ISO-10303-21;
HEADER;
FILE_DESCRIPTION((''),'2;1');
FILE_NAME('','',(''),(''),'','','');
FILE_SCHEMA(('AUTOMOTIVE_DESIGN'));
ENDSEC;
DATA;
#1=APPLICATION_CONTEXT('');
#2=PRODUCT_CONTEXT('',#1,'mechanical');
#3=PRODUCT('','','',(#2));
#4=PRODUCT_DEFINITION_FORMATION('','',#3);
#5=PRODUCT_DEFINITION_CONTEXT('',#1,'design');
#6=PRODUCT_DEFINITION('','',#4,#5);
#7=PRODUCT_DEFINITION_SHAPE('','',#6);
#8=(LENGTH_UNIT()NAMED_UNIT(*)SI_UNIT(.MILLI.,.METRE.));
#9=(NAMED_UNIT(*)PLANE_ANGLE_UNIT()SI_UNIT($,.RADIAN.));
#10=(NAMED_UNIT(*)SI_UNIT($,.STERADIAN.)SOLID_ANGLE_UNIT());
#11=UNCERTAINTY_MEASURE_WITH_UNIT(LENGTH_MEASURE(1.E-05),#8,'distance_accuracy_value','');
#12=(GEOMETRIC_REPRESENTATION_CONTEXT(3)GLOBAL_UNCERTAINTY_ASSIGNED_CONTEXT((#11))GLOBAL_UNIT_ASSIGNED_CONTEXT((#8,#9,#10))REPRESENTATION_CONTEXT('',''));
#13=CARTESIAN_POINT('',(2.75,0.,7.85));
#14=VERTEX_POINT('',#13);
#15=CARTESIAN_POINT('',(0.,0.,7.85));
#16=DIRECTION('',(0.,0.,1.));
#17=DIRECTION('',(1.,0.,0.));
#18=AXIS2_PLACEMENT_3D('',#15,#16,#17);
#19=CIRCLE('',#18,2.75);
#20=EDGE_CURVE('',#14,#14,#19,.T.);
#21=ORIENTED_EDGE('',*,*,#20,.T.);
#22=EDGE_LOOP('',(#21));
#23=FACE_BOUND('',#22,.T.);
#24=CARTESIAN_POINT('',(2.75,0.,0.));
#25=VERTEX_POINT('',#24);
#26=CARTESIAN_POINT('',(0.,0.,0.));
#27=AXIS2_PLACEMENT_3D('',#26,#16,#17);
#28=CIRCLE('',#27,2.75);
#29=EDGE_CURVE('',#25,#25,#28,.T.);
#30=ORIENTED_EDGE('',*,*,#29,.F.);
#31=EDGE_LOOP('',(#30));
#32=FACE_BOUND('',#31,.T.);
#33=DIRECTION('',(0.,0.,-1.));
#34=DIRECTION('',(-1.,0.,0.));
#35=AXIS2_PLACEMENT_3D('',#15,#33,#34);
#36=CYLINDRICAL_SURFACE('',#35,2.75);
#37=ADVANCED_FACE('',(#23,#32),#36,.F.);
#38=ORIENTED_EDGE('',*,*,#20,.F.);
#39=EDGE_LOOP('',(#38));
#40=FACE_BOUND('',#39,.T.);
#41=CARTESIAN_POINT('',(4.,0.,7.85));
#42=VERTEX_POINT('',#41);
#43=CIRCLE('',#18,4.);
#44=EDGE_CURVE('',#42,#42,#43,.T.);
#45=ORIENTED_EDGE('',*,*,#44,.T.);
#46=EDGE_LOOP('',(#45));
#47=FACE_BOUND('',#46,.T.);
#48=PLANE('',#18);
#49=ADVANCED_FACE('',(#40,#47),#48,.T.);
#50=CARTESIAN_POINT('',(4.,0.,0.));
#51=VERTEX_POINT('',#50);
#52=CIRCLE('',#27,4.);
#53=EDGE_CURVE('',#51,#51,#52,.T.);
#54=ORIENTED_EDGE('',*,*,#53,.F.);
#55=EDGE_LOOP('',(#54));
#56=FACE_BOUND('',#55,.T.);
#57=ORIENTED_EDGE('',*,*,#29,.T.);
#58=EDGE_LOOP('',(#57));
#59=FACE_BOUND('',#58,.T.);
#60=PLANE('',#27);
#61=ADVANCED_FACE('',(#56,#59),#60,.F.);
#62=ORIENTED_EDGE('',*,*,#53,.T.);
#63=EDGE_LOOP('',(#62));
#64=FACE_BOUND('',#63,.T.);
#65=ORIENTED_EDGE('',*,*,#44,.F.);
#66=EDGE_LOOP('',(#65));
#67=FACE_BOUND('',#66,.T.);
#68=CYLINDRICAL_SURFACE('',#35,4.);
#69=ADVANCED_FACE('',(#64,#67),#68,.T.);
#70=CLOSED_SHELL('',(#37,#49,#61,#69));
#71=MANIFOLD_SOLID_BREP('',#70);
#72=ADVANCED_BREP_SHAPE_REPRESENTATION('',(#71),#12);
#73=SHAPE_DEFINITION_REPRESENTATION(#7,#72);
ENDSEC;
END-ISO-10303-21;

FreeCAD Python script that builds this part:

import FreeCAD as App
import Part
import Sketcher

V = App.Vector

doc = App.newDocument("Part")
body = doc.addObject("PartDesign::Body", "Body")

# Sketch on XY plane
sketch1 = body.newObject("Sketcher::SketchObject", "Sketch")
sketch1.AttachmentSupport = (doc.getObject("XY_Plane"), [""])
sketch1.MapMode = "FlatFace"
sketch1.addGeometry([
    Part.Circle(V(0, 0, 0), V(0, 0, 1), 4),
    Part.Circle(V(0, 0, 0), V(0, 0, 1), 2.8),
], False)
sketch1.addConstraint([
    Sketcher.Constraint("Coincident", 0, 3, -1, 1),
    Sketcher.Constraint("Coincident", 1, 3, -1, 1),
    Sketcher.Constraint("Diameter", 0, 8.0),
    Sketcher.Constraint("Diameter", 1, 5.5),
])
pad1 = body.newObject("PartDesign::Pad", "Pad")
pad1.Profile = sketch1
pad1.Length = 7.85

doc.recompute()
